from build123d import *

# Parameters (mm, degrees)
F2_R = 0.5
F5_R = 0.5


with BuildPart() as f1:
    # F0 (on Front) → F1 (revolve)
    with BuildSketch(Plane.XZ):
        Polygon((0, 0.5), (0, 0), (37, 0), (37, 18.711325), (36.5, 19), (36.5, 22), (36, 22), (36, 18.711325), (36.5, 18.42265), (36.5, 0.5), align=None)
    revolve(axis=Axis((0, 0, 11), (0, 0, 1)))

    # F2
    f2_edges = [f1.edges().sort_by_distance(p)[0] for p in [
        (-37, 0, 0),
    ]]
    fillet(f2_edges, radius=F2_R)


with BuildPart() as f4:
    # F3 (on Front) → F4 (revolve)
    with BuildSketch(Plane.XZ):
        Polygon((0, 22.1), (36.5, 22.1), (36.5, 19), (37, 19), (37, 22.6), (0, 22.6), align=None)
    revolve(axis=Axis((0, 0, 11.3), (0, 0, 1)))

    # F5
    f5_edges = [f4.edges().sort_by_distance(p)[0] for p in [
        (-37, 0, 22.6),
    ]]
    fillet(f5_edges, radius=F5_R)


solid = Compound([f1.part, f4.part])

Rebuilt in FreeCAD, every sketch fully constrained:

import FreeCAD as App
import Part
import Sketcher

V = App.Vector
Q = App.Units.Quantity


def edges_at(feature, points):
    """Names of the edges that pass closest to the given points."""
    edges = feature.Shape.Edges
    near = lambda p: min(range(len(edges)), key=lambda i: edges[i].distToShape(Part.Vertex(*p))[0])
    return sorted({f"Edge{near(p) + 1}" for p in points})

doc = App.newDocument("Part")
body = doc.addObject("PartDesign::Body", "Body")

# Sketch on XZ plane
sketch1 = body.newObject("Sketcher::SketchObject", "Sketch")
sketch1.AttachmentSupport = (doc.getObject("XZ_Plane"), [""])
sketch1.MapMode = "FlatFace"
sketch1.addGeometry(Part.LineSegment(V(0, 0.5, 0), V(0, 0, 0)), False)
sketch1.addGeometry(Part.LineSegment(V(0, 0, 0), V(37, 0, 0)), False)
sketch1.addGeometry(Part.LineSegment(V(37, 0, 0), V(37, 18.711325, 0)), False)
sketch1.addGeometry(Part.LineSegment(V(37, 18.711325, 0), V(36.5, 19, 0)), False)
sketch1.addGeometry(Part.LineSegment(V(36.5, 19, 0), V(36.5, 22, 0)), False)
sketch1.addGeometry(Part.LineSegment(V(36.5, 22, 0), V(36, 22, 0)), False)
sketch1.addGeometry(Part.LineSegment(V(36, 22, 0), V(36, 18.711325, 0)), False)
sketch1.addGeometry(Part.LineSegment(V(36, 18.711325, 0), V(36.5, 18.42265, 0)), False)
sketch1.addGeometry(Part.LineSegment(V(36.5, 18.42265, 0), V(36.5, 0.5, 0)), False)
sketch1.addGeometry(Part.LineSegment(V(36.5, 0.5, 0), V(0, 0.5, 0)), False)
sketch1.addConstraint(Sketcher.Constraint("Coincident", 0, 2, 1, 1))
sketch1.addConstraint(Sketcher.Constraint("Coincident", 1, 2, 2, 1))
sketch1.addConstraint(Sketcher.Constraint("Coincident", 2, 2, 3, 1))
sketch1.addConstraint(Sketcher.Constraint("Coincident", 3, 2, 4, 1))
sketch1.addConstraint(Sketcher.Constraint("Coincident", 4, 2, 5, 1))
sketch1.addConstraint(Sketcher.Constraint("Coincident", 5, 2, 6, 1))
sketch1.addConstraint(Sketcher.Constraint("Coincident", 6, 2, 7, 1))
sketch1.addConstraint(Sketcher.Constraint("Coincident", 7, 2, 8, 1))
sketch1.addConstraint(Sketcher.Constraint("Coincident", 8, 2, 9, 1))
sketch1.addConstraint(Sketcher.Constraint("Coincident", 9, 2, 0, 1))
sketch1.addConstraint(Sketcher.Constraint("Vertical", 0))
sketch1.addConstraint(Sketcher.Constraint("Horizontal", 1))
sketch1.addConstraint(Sketcher.Constraint("Vertical", 2))
sketch1.addConstraint(Sketcher.Constraint("Vertical", 4))
sketch1.addConstraint(Sketcher.Constraint("Horizontal", 5))
sketch1.addConstraint(Sketcher.Constraint("Vertical", 6))
sketch1.addConstraint(Sketcher.Constraint("Vertical", 8))
sketch1.addConstraint(Sketcher.Constraint("Horizontal", 9))
sketch1.addConstraint(Sketcher.Constraint("Coincident", 0, 2, -1, 1))
sketch1.addConstraint(Sketcher.Constraint("Parallel", 3, 7))
sketch1.addConstraint(Sketcher.Constraint("Horizontal", 2, 2, 6, 2))
sketch1.addConstraint(Sketcher.Constraint("Vertical", 4, 2, 7, 2))
sketch1.addConstraint(Sketcher.Constraint("Equal", 5, 0))
sketch1.addConstraint(Sketcher.Constraint("Equal", 3, 7))
sketch1.addConstraint(Sketcher.Constraint("DistanceX", 1, 1, 1, 2, Q("37 mm")))
sketch1.addConstraint(Sketcher.Constraint("DistanceY", 4, 1, 4, 2, Q("3 mm")))
sketch1.addConstraint(Sketcher.Constraint("Angle", 3, Q("150.000012 deg")))
sketch1.addConstraint(Sketcher.Constraint("DistanceX", 5, 2, 5, 1, Q("0.5 mm")))
sketch1.addConstraint(Sketcher.Constraint("DistanceY", -1, 1, 3, 2, Q("19 mm")))
revolution = body.newObject("PartDesign::Revolution", "Revolution")
revolution.Profile = sketch1
revolution.ReferenceAxis = (sketch1, ["V_Axis"])
revolution.Angle = 360
doc.recompute()

fillet = body.newObject("PartDesign::Fillet", "Fillet")
fillet.Base = (revolution, edges_at(revolution, [(-37, 0, 0)]))
fillet.Radius = 0.5
body2 = doc.addObject("PartDesign::Body", "Body001")

# Sketch on XZ plane
sketch2 = body2.newObject("Sketcher::SketchObject", "Sketch001")
sketch2.AttachmentSupport = (doc.getObject("XZ_Plane001"), [""])
sketch2.MapMode = "FlatFace"
sketch2.addGeometry(Part.LineSegment(V(0, 22.1, 0), V(36.5, 22.1, 0)), False)
sketch2.addGeometry(Part.LineSegment(V(36.5, 22.1, 0), V(36.5, 19, 0)), False)
sketch2.addGeometry(Part.LineSegment(V(36.5, 19, 0), V(37, 19, 0)), False)
sketch2.addGeometry(Part.LineSegment(V(37, 19, 0), V(37, 22.6, 0)), False)
sketch2.addGeometry(Part.LineSegment(V(37, 22.6, 0), V(0, 22.6, 0)), False)
sketch2.addGeometry(Part.LineSegment(V(0, 22.6, 0), V(0, 22.1, 0)), False)
sketch2.addConstraint(Sketcher.Constraint("Coincident", 0, 2, 1, 1))
sketch2.addConstraint(Sketcher.Constraint("Coincident", 1, 2, 2, 1))
sketch2.addConstraint(Sketcher.Constraint("Coincident", 2, 2, 3, 1))
sketch2.addConstraint(Sketcher.Constraint("Coincident", 3, 2, 4, 1))
sketch2.addConstraint(Sketcher.Constraint("Coincident", 4, 2, 5, 1))
sketch2.addConstraint(Sketcher.Constraint("Coincident", 5, 2, 0, 1))
sketch2.addConstraint(Sketcher.Constraint("Horizontal", 0))
sketch2.addConstraint(Sketcher.Constraint("Vertical", 1))
sketch2.addConstraint(Sketcher.Constraint("Horizontal", 2))
sketch2.addConstraint(Sketcher.Constraint("Vertical", 3))
sketch2.addConstraint(Sketcher.Constraint("Horizontal", 4))
sketch2.addConstraint(Sketcher.Constraint("Vertical", 5))
sketch2.addConstraint(Sketcher.Constraint("PointOnObject", 4, 2, -2))
sketch2.addConstraint(Sketcher.Constraint("Equal", 2, 5))
sketch2.addConstraint(Sketcher.Constraint("DistanceX", 4, 2, 4, 1, Q("37 mm")))
sketch2.addConstraint(Sketcher.Constraint("DistanceX", 0, 1, 0, 2, Q("36.5 mm")))
sketch2.addConstraint(Sketcher.Constraint("DistanceY", 1, 2, 1, 1, Q("3.1 mm")))
sketch2.addConstraint(Sketcher.Constraint("DistanceY", -1, 1, 1, 2, Q("19 mm")))
revolution2 = body2.newObject("PartDesign::Revolution", "Revolution001")
revolution2.Profile = sketch2
revolution2.ReferenceAxis = (sketch2, ["V_Axis"])
revolution2.Angle = 360
doc.recompute()

fillet2 = body2.newObject("PartDesign::Fillet", "Fillet001")
fillet2.Base = (revolution2, edges_at(revolution2, [(-37, 0, 22.6)]))
fillet2.Radius = 0.5

doc.recompute()
